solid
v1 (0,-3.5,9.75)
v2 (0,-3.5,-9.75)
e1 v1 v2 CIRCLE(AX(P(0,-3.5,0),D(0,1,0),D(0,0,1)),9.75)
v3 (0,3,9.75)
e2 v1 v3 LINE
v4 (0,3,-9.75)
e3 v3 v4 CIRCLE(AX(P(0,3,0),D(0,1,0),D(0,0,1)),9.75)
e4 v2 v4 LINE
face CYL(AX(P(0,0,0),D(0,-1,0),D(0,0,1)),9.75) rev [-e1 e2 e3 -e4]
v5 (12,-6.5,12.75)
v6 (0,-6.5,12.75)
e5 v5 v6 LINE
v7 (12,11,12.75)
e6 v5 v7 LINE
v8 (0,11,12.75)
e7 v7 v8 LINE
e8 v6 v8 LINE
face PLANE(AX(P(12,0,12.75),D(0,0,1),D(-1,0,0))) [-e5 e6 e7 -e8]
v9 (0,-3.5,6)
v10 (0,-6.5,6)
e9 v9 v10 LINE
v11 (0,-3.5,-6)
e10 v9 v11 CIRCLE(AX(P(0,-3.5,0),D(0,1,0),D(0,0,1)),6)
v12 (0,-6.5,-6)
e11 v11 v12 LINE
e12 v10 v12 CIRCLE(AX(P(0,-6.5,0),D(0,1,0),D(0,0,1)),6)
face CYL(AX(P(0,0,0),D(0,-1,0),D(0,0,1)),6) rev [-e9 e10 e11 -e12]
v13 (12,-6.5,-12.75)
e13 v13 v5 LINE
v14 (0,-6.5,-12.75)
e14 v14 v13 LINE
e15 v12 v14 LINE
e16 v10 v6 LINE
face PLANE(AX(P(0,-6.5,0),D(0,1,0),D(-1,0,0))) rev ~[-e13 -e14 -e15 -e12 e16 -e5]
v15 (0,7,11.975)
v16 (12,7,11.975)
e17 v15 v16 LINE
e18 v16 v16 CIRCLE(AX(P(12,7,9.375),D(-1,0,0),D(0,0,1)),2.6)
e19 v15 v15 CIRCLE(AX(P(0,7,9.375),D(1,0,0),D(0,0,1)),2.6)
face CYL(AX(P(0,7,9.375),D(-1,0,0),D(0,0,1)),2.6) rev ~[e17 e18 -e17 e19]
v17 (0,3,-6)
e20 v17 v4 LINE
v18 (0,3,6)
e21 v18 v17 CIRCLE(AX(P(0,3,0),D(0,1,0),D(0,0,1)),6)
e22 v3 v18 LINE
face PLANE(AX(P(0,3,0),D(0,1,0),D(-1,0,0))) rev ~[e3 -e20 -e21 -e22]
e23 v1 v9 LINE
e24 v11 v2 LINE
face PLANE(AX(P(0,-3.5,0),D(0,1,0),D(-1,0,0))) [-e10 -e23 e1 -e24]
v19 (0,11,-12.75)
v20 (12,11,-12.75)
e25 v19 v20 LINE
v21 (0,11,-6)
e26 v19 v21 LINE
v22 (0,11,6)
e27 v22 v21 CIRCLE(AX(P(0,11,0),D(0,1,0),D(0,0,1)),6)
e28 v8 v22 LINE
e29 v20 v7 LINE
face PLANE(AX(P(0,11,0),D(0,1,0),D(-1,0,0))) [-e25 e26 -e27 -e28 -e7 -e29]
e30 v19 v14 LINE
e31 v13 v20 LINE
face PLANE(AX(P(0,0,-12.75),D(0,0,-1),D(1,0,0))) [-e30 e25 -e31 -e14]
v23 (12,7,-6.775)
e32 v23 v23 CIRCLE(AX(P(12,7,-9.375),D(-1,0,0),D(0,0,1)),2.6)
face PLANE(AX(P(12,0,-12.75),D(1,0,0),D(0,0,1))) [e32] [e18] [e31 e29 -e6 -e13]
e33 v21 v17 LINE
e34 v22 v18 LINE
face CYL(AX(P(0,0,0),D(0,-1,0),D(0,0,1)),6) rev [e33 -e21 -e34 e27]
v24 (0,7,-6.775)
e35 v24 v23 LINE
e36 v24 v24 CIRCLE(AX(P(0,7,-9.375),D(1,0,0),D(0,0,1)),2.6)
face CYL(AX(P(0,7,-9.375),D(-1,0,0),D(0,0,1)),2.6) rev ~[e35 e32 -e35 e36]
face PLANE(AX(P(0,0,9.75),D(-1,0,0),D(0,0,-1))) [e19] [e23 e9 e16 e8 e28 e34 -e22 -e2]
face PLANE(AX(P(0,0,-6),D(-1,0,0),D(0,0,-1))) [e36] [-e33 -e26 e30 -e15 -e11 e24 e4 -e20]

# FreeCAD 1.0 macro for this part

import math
import FreeCAD as App
import Part
import Sketcher
from FreeCAD import Vector
Q = App.Units.Quantity

doc = App.newDocument("Part")
body = doc.addObject("PartDesign::Body", "Body")

# Sketch on XZ plane
sketch1 = body.newObject("Sketcher::SketchObject", "Sketch")
sketch1.AttachmentSupport = (doc.getObject("XZ_Plane"), [""])
sketch1.MapMode = "FlatFace"
sketch1.addGeometry(Part.LineSegment(Vector(0, 6, 0), Vector(0, 13, 0)), False)
sketch1.addGeometry(Part.LineSegment(Vector(0, 13, 0), Vector(12, 13, 0)), False)
sketch1.addGeometry(Part.LineSegment(Vector(12, 13, 0), Vector(12, -13, 0)), False)
sketch1.addGeometry(Part.LineSegment(Vector(12, -13, 0), Vector(0, -13, 0)), False)
sketch1.addGeometry(Part.LineSegment(Vector(0, -13, 0), Vector(0, -6, 0)), False)
sketch1.addGeometry(Part.ArcOfCircle(Part.Circle(Vector(0, 0, 0), Vector(0, 0, 1), 6), math.radians(-90), math.radians(90)), False)
sketch1.addConstraint(Sketcher.Constraint("Coincident", 0, 2, 1, 1))
sketch1.addConstraint(Sketcher.Constraint("Coincident", 1, 2, 2, 1))
sketch1.addConstraint(Sketcher.Constraint("Coincident", 2, 2, 3, 1))
sketch1.addConstraint(Sketcher.Constraint("Coincident", 3, 2, 4, 1))
sketch1.addConstraint(Sketcher.Constraint("Coincident", 4, 2, 5, 1))
sketch1.addConstraint(Sketcher.Constraint("Coincident", 5, 2, 0, 1))
sketch1.addConstraint(Sketcher.Constraint("Vertical", 0))
sketch1.addConstraint(Sketcher.Constraint("Horizontal", 1))
sketch1.addConstraint(Sketcher.Constraint("Vertical", 2))
sketch1.addConstraint(Sketcher.Constraint("Horizontal", 3))
sketch1.addConstraint(Sketcher.Constraint("Vertical", 4))
sketch1.addConstraint(Sketcher.Constraint("Coincident", 5, 3, -1, 1))
sketch1.addConstraint(Sketcher.Constraint("Symmetric", 0, 2, 3, 2, -1, 1))
sketch1.addConstraint(Sketcher.Constraint("PointOnObject", 0, 2, -2))
sketch1.addConstraint(Sketcher.Constraint("Radius", 5, Q("6 mm")))
sketch1.addConstraint(Sketcher.Constraint("DistanceX", 1, 1, 1, 2, Q("12 mm")))
sketch1.addConstraint(Sketcher.Constraint("DistanceY", 2, 2, 2, 1, Q("25.5 mm")))
pad1 = body.newObject("PartDesign::Pad", "Pad")
pad1.Profile = sketch1
pad1.Type = "TwoLengths"
pad1.Length = 11
pad1.Length2 = 6.5
pad1.Reversed = True

# Sketch on XZ plane
sketch2 = body.newObject("Sketcher::SketchObject", "Sketch001")
sketch2.AttachmentSupport = (doc.getObject("XZ_Plane"), [""])
sketch2.MapMode = "FlatFace"
sketch2.addGeometry(Part.LineSegment(Vector(0, 6, 0), Vector(0, 9.8, 0)), False)
sketch2.addGeometry(Part.ArcOfCircle(Part.Circle(Vector(0, 0, 0), Vector(0, 0, 1), 9.8), math.radians(-90), math.radians(90)), False)
sketch2.addGeometry(Part.LineSegment(Vector(0, -9.8, 0), Vector(0, -6, 0)), False)
sketch2.addGeometry(Part.ArcOfCircle(Part.Circle(Vector(0, 0, 0), Vector(0, 0, 1), 6), math.radians(-90), math.radians(90)), False)
sketch2.addConstraint(Sketcher.Constraint("Coincident", 0, 2, 1, 2))
sketch2.addConstraint(Sketcher.Constraint("Coincident", 1, 1, 2, 1))
sketch2.addConstraint(Sketcher.Constraint("Coincident", 2, 2, 3, 1))
sketch2.addConstraint(Sketcher.Constraint("Coincident", 3, 2, 0, 1))
sketch2.addConstraint(Sketcher.Constraint("Vertical", 0))
sketch2.addConstraint(Sketcher.Constraint("Vertical", 2))
sketch2.addConstraint(Sketcher.Constraint("Coincident", 1, 3, -1, 1))
sketch2.addConstraint(Sketcher.Constraint("Coincident", 3, 3, -1, 1))
sketch2.addConstraint(Sketcher.Constraint("PointOnObject", 0, 2, -2))
sketch2.addConstraint(Sketcher.Constraint("PointOnObject", 1, 1, -2))
sketch2.addConstraint(Sketcher.Constraint("Radius", 3, Q("6 mm")))
sketch2.addConstraint(Sketcher.Constraint("Radius", 1, Q("9.75 mm")))
pocket1 = body.newObject("PartDesign::Pocket", "Pocket")
pocket1.Profile = sketch2
pocket1.Type = "TwoLengths"
pocket1.Length = 3
pocket1.Length2 = 3.5

# Sketch on YZ plane
sketch3 = body.newObject("Sketcher::SketchObject", "Sketch002")
sketch3.AttachmentSupport = (doc.getObject("YZ_Plane"), [""])
sketch3.MapMode = "FlatFace"
sketch3.addGeometry(Part.Circle(Vector(7, -9.4, 0), Vector(0, 0, 1), 2.6), False)
sketch3.addGeometry(Part.Circle(Vector(7, 9.4, 0), Vector(0, 0, 1), 2.6), False)
sketch3.addConstraint(Sketcher.Constraint("Equal", 0, 1))
sketch3.addConstraint(Sketcher.Constraint("Symmetric", 0, 3, 1, 3, -1))
sketch3.addConstraint(Sketcher.Constraint("Diameter", 0, Q("5.2 mm")))
sketch3.addConstraint(Sketcher.Constraint("DistanceX", -1, 1, 0, 3, Q("7 mm")))
sketch3.addConstraint(Sketcher.Constraint("DistanceY", 0, 3, 1, 3, Q("18.75 mm")))
pocket2 = body.newObject("PartDesign::Pocket", "Pocket001")
pocket2.Profile = sketch3
pocket2.Length = 30
pocket2.Reversed = True

doc.recompute()
